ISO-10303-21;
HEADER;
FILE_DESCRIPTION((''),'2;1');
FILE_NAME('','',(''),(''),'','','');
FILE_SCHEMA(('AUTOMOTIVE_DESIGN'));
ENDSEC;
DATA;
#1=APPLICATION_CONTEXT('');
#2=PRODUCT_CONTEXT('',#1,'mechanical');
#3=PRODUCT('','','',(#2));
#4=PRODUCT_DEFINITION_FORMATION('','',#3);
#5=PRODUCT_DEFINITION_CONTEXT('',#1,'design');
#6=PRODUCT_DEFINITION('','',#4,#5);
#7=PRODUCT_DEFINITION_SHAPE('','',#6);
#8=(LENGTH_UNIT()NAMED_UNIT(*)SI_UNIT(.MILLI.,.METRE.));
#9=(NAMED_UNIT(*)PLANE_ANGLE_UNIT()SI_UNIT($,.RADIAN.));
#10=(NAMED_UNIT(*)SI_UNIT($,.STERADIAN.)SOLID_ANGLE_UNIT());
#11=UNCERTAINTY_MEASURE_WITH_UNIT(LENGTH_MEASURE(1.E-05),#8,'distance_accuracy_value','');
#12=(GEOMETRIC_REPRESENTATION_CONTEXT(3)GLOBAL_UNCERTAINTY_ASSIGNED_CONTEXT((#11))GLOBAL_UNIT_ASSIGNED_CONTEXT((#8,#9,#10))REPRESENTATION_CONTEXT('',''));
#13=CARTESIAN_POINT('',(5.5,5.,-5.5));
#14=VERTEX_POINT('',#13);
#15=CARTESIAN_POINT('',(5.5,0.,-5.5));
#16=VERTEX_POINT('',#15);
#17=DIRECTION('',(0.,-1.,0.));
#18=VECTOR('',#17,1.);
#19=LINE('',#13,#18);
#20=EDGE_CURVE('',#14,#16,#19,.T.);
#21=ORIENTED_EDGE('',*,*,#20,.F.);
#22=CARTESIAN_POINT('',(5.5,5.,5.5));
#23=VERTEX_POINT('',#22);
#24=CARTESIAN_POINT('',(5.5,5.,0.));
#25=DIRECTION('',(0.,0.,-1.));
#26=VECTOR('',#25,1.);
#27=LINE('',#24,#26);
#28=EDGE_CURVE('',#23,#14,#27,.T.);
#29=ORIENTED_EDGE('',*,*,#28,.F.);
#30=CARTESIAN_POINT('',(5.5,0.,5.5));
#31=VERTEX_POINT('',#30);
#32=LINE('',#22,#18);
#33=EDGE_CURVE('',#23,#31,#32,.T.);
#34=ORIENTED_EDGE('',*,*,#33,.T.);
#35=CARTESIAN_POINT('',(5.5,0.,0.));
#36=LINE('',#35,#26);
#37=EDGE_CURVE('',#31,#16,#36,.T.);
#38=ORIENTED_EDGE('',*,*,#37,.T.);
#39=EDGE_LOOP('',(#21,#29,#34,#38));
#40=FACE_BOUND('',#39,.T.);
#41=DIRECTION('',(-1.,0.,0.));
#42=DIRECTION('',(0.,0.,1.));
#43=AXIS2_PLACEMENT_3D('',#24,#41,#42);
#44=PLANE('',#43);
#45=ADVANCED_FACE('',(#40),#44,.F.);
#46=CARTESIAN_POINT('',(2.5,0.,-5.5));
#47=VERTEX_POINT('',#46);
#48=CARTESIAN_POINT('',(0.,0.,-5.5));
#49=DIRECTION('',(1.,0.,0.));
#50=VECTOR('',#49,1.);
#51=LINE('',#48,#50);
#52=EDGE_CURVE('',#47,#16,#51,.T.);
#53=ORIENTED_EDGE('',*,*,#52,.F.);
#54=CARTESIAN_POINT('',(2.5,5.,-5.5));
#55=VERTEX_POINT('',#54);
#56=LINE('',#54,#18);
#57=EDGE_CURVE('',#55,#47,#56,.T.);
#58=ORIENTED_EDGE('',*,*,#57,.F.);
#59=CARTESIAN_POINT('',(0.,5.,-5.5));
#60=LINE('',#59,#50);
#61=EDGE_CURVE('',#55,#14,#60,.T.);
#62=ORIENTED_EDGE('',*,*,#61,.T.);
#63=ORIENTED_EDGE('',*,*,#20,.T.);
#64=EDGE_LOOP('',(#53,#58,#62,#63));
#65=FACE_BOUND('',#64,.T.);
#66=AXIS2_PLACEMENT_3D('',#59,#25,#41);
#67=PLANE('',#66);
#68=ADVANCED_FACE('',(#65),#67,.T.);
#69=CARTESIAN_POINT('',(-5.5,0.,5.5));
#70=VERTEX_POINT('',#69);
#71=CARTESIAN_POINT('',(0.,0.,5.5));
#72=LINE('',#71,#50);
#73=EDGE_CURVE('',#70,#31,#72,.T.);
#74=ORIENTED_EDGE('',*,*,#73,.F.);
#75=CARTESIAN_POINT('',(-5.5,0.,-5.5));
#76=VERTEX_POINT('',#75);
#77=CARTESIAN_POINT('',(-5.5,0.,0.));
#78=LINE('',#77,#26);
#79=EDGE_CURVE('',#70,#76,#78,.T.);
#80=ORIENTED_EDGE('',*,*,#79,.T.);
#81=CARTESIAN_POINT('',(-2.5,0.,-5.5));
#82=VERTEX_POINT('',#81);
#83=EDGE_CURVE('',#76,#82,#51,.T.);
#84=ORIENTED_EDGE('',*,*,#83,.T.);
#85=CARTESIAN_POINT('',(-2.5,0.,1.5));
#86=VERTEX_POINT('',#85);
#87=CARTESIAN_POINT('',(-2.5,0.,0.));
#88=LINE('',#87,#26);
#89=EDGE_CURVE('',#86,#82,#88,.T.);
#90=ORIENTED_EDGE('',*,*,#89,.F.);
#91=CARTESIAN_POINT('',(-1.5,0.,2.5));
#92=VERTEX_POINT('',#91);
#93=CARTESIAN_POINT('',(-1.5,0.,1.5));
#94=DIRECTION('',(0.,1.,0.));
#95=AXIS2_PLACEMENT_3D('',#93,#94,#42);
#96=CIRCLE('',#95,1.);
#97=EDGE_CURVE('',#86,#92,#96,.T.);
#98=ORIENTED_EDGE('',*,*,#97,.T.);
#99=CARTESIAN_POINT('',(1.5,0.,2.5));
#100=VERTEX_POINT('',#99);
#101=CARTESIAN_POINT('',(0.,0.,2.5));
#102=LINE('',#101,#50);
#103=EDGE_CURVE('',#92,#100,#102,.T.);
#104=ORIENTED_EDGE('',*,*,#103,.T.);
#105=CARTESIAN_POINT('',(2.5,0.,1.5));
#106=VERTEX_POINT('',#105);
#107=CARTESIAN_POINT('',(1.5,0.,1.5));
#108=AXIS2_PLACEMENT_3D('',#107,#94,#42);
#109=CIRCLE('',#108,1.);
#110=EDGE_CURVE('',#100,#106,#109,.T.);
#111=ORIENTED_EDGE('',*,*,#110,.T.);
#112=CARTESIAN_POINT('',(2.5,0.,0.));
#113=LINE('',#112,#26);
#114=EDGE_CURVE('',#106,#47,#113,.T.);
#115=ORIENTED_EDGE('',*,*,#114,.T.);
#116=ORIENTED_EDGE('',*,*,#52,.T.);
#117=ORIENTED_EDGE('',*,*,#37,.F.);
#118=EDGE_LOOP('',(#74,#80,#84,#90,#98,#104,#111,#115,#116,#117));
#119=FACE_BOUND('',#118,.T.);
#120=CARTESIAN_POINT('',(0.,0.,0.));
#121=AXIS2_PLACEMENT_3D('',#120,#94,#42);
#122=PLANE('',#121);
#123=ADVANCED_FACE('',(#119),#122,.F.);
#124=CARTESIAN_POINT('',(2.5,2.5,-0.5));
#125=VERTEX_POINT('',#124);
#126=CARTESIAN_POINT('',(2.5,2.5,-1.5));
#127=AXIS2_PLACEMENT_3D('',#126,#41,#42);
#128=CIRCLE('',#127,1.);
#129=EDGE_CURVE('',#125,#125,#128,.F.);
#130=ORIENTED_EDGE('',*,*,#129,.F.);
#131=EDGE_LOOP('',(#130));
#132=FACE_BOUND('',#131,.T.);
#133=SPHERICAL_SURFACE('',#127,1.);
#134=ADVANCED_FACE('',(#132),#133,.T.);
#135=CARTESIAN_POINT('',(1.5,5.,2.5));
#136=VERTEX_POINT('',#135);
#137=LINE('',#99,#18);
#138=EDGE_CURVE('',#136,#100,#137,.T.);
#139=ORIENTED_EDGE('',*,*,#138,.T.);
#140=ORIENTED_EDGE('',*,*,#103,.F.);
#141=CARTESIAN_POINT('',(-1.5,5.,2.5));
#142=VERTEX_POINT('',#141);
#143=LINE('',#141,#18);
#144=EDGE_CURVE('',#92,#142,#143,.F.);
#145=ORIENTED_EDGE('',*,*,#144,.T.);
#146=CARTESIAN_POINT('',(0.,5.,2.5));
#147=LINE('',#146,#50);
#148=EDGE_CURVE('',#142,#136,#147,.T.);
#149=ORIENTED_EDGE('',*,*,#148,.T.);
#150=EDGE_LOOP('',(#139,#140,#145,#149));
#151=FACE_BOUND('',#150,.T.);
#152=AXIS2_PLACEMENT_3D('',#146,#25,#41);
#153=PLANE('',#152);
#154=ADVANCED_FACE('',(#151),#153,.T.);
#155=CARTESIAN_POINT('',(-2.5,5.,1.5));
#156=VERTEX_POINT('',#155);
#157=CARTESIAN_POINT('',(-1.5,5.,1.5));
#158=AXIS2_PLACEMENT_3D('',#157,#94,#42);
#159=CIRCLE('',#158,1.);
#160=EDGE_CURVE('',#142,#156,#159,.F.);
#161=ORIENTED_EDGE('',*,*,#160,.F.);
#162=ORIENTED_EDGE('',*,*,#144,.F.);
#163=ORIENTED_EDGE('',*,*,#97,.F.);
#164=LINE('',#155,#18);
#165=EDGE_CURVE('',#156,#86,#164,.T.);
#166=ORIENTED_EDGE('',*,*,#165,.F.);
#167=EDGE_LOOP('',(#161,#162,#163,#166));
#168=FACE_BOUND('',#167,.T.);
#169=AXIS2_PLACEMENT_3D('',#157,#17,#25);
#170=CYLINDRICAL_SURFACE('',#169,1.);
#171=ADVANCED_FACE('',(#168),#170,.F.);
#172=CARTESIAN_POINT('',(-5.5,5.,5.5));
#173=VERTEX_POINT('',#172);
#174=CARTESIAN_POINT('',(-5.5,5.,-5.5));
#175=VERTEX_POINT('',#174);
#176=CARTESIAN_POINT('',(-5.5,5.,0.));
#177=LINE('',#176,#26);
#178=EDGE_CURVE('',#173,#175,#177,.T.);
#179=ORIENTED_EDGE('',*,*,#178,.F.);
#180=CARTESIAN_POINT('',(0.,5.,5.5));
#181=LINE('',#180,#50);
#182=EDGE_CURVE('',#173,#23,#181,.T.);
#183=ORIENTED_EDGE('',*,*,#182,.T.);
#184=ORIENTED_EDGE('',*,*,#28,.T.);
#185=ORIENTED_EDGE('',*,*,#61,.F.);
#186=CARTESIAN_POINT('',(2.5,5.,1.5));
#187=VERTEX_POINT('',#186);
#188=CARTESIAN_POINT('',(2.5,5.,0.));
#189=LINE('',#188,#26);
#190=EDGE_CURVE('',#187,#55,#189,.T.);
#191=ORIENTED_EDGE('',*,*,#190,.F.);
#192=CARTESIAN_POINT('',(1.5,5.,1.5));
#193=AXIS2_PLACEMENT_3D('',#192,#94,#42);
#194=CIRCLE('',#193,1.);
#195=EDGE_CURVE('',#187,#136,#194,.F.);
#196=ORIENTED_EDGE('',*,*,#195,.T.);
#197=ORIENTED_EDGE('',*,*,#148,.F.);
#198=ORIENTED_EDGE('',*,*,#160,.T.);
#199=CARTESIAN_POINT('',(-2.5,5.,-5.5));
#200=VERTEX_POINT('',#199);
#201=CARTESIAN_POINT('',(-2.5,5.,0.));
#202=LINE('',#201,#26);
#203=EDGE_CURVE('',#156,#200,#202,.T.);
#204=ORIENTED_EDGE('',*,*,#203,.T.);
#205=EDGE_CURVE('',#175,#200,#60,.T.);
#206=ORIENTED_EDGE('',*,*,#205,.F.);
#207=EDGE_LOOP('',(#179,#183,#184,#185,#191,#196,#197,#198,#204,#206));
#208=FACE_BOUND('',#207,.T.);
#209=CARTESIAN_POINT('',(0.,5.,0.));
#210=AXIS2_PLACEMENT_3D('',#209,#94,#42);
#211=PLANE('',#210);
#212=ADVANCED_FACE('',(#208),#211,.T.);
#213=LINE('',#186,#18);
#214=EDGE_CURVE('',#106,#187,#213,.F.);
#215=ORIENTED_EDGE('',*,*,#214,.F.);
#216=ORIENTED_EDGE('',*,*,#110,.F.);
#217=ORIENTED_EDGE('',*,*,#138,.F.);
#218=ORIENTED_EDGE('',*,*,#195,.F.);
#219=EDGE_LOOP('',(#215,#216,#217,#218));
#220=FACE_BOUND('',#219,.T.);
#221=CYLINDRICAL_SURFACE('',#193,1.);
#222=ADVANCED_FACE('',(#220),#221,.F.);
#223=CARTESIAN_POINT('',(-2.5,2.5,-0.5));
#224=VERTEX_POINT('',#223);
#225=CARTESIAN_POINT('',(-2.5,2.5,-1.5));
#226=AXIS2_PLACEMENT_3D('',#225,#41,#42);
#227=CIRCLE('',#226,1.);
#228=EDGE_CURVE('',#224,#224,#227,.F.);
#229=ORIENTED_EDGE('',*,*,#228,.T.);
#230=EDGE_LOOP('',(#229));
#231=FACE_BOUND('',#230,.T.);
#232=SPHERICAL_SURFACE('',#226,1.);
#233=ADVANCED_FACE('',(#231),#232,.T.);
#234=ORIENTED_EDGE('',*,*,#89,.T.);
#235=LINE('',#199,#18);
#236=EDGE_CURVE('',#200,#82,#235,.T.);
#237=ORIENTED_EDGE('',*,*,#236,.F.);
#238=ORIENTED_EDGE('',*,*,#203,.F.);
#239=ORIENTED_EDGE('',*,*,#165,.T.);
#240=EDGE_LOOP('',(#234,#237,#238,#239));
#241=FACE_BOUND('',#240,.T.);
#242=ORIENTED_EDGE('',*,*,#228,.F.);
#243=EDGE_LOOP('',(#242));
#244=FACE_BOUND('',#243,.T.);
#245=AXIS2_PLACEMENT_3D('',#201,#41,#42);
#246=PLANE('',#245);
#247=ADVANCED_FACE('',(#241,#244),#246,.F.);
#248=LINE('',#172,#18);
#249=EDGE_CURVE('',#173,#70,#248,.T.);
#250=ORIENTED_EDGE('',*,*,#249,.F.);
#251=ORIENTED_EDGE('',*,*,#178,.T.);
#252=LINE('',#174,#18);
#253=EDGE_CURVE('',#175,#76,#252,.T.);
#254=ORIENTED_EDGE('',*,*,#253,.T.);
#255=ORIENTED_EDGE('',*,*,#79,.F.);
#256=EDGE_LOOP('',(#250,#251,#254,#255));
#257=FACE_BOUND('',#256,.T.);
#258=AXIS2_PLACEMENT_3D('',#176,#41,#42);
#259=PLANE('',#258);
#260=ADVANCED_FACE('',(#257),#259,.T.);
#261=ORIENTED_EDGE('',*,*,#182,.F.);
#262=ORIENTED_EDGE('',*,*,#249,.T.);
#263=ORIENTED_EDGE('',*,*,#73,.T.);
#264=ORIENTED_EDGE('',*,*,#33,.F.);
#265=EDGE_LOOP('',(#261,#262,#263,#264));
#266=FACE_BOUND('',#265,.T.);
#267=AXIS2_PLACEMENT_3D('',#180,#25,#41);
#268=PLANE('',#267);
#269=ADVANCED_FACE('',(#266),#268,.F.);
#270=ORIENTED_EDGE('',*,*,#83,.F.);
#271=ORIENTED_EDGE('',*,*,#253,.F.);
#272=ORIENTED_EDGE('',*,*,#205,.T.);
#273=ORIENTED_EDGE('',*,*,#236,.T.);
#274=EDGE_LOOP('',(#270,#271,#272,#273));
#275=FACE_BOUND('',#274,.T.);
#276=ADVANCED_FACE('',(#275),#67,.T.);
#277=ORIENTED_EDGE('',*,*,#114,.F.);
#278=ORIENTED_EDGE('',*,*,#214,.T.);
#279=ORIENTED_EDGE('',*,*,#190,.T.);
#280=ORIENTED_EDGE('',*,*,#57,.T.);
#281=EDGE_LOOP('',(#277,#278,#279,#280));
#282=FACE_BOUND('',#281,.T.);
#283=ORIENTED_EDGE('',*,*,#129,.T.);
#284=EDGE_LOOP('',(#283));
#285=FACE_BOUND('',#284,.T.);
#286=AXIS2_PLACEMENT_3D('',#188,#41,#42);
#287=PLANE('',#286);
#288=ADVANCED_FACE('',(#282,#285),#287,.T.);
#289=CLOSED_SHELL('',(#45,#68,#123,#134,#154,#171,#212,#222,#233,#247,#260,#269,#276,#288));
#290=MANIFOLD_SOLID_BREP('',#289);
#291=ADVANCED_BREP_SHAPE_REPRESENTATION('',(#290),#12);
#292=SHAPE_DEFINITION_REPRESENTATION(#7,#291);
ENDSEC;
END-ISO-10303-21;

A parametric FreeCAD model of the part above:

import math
import FreeCAD as App
import Part
import Sketcher


def edges_at(feature, points):
    """Names of the edges that pass closest to the given points."""
    edges = feature.Shape.Edges
    near = lambda p: min(range(len(edges)), key=lambda i: edges[i].distToShape(Part.Vertex(*p))[0])
    return sorted({f"Edge{near(p) + 1}" for p in points})

doc = App.newDocument("Part")
body = doc.addObject("PartDesign::Body", "Body")

sketch1 = body.newObject("Sketcher::SketchObject", "Sketch")
sketch1.AttachmentSupport = (doc.getObject("XZ_Plane"), [""])
sketch1.MapMode = "FlatFace"
sketch1.addGeometry(Part.LineSegment(App.Vector(-5.5, -5.5, 0), App.Vector(-5.5, 5.5, 0)), False)
sketch1.addGeometry(Part.LineSegment(App.Vector(-5.5, 5.5, 0), App.Vector(5.5, 5.5, 0)), False)
sketch1.addGeometry(Part.LineSegment(App.Vector(5.5, 5.5, 0), App.Vector(5.5, -5.5, 0)), False)
sketch1.addGeometry(Part.LineSegment(App.Vector(5.5, -5.5, 0), App.Vector(2.5, -5.5, 0)), False)
sketch1.addGeometry(Part.LineSegment(App.Vector(2.5, -5.5, 0), App.Vector(2.5, 2.5, 0)), False)
sketch1.addGeometry(Part.LineSegment(App.Vector(2.5, 2.5, 0), App.Vector(-2.5, 2.5, 0)), False)
sketch1.addGeometry(Part.LineSegment(App.Vector(-2.5, 2.5, 0), App.Vector(-2.5, -5.5, 0)), False)
sketch1.addGeometry(Part.LineSegment(App.Vector(-2.5, -5.5, 0), App.Vector(-5.5, -5.5, 0)), False)
sketch1.addConstraint(Sketcher.Constraint("Coincident", 0, 2, 1, 1))
sketch1.addConstraint(Sketcher.Constraint("Coincident", 1, 2, 2, 1))
sketch1.addConstraint(Sketcher.Constraint("Coincident", 2, 2, 3, 1))
sketch1.addConstraint(Sketcher.Constraint("Coincident", 3, 2, 4, 1))
sketch1.addConstraint(Sketcher.Constraint("Coincident", 4, 2, 5, 1))
sketch1.addConstraint(Sketcher.Constraint("Coincident", 5, 2, 6, 1))
sketch1.addConstraint(Sketcher.Constraint("Coincident", 6, 2, 7, 1))
sketch1.addConstraint(Sketcher.Constraint("Coincident", 7, 2, 0, 1))
sketch1.addConstraint(Sketcher.Constraint("Vertical", 0))
sketch1.addConstraint(Sketcher.Constraint("Horizontal", 1))
sketch1.addConstraint(Sketcher.Constraint("Vertical", 2))
sketch1.addConstraint(Sketcher.Constraint("Horizontal", 3))
sketch1.addConstraint(Sketcher.Constraint("Vertical", 4))
sketch1.addConstraint(Sketcher.Constraint("Horizontal", 5))
sketch1.addConstraint(Sketcher.Constraint("Vertical", 6))
sketch1.addConstraint(Sketcher.Constraint("Horizontal", 7))
sketch1.addConstraint(Sketcher.Constraint("Symmetric", 0, 2, 2, 2, -1, 1))
sketch1.addConstraint(Sketcher.Constraint("Symmetric", 3, 2, 6, 2, -2))
sketch1.addConstraint(Sketcher.Constraint("Equal", 1, 0))
sketch1.addConstraint(Sketcher.Constraint("DistanceX", 1, 1, 1, 2, 11.0))
sketch1.addConstraint(Sketcher.Constraint("DistanceX", 3, 2, 3, 1, 3.0))
sketch1.addConstraint(Sketcher.Constraint("DistanceY", 4, 1, 4, 2, 8.0))
pad1 = body.newObject("PartDesign::Pad", "Pad")
pad1.Profile = sketch1
pad1.Length = 5
pad1.Reversed = True

sketch2 = body.newObject("Sketcher::SketchObject", "Sketch001")
sketch2.AttachmentSupport = (doc.getObject("YZ_Plane"), [""])
sketch2.MapMode = "FlatFace"
sketch2.AttachmentOffset = App.Placement(App.Vector(0, 0, -2.5), App.Rotation())
sketch2.addGeometry(Part.LineSegment(App.Vector(2.5, -2.5, 0), App.Vector(2.5, -0.5, 0)), False)
sketch2.addGeometry(Part.ArcOfCircle(Part.Circle(App.Vector(2.5, -1.5, 0), App.Vector(0, 0, 1), 1), math.radians(90), math.radians(270)), False)
sketch2.addGeometry(Part.LineSegment(App.Vector(2.5, -2.5, 0), App.Vector(2.5, -0.5, 0)), True)
sketch2.addConstraint(Sketcher.Constraint("Coincident", 0, 1, 1, 2))
sketch2.addConstraint(Sketcher.Constraint("Coincident", 1, 1, 0, 2))
sketch2.addConstraint(Sketcher.Constraint("Vertical", 0))
sketch2.addConstraint(Sketcher.Constraint("Vertical", 2))
sketch2.addConstraint(Sketcher.Constraint("Coincident", 2, 1, 0, 1))
sketch2.addConstraint(Sketcher.Constraint("Vertical", 1, 3, 0, 1))
sketch2.addConstraint(Sketcher.Constraint("Equal", 0, 2))
sketch2.addConstraint(Sketcher.Constraint("Radius", 1, 1.0))
sketch2.addConstraint(Sketcher.Constraint("DistanceX", -1, 1, 1, 3, 2.5))
sketch2.addConstraint(Sketcher.Constraint("DistanceY", 1, 3, -1, 1, 1.5))
revolution = body.newObject("PartDesign::Revolution", "Revolution")
revolution.Profile = sketch2
revolution.ReferenceAxis = (sketch2, ["Axis0"])
revolution.Angle = 360
doc.recompute()

mirrored = body.newObject("PartDesign::Mirrored", "Mirrored")
mirrored.Originals = [revolution]
mirrored.MirrorPlane = (doc.getObject("YZ_Plane"), [""])
body.Tip = mirrored
doc.recompute()

fillet = body.newObject("PartDesign::Fillet", "Fillet")
fillet.Base = (mirrored, edges_at(mirrored, [(-2.5, 2.5, 2.5), (2.5, 2.5, 2.5)]))
fillet.Radius = 1

doc.recompute()
